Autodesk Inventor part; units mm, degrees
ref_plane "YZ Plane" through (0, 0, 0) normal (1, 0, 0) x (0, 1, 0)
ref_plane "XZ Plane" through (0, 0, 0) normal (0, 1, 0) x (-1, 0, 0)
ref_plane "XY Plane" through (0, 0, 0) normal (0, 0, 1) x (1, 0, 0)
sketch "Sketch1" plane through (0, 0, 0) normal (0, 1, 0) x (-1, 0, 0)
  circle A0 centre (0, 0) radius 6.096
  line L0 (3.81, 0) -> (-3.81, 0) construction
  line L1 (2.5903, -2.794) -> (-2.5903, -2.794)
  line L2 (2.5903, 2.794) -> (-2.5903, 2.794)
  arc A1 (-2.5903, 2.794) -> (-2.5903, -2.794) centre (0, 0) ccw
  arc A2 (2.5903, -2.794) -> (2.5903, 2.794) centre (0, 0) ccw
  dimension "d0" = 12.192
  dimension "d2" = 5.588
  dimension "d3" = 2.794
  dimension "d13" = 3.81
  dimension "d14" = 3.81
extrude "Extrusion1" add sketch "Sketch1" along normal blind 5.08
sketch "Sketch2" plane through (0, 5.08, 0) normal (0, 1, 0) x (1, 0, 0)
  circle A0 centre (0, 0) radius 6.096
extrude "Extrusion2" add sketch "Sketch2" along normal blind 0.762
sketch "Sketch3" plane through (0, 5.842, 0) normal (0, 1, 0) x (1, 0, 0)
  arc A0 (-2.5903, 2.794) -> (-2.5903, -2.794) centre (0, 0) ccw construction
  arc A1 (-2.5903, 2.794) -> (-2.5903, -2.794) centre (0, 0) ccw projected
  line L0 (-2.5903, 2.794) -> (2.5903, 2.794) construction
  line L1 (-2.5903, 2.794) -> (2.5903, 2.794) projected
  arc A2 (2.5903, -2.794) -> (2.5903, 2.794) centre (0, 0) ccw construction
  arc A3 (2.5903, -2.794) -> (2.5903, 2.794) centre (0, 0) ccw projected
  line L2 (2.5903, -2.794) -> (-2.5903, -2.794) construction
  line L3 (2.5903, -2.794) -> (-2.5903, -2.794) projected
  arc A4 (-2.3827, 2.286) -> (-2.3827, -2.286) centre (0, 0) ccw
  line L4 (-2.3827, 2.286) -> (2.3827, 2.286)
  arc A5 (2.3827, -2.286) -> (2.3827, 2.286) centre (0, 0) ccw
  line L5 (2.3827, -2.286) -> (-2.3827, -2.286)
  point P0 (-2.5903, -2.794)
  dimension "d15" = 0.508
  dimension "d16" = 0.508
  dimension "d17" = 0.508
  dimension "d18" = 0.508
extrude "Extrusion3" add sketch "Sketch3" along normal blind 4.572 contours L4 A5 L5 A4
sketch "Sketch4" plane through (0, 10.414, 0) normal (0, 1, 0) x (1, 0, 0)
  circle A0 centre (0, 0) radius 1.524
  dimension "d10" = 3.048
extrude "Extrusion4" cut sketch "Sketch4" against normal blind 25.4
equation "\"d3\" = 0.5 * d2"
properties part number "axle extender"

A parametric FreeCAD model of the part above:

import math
import FreeCAD as App
import Part
import Sketcher
from FreeCAD import Vector
Q = App.Units.Quantity

doc = App.newDocument("Part")
params = doc.addObject("Spreadsheet::Sheet", "Params")
for row, (alias, value) in enumerate([
    ("sketch1_diameter", "0.48 in"),
    ("sketch1_radius", "0.15 in"),
    ("pad1_length", "0.2 in"),
    ("sketch2_diameter", "0.48 in"),
    ("pad2_length", "0.03 in"),
    ("sketch3_radius", "0.13 in"),
    ("pad3_length", "0.18 in"),
    ("sketch4_diameter", "0.12 in"),
    ("pocket1_length", "1 in"),
], start=1):
    params.set(f"A{row}", alias)
    params.set(f"B{row}", "=" + value)
    params.setAlias(f"B{row}", alias)

body = doc.addObject("PartDesign::Body", "Body")

# Sketch on XZ plane
sketch1 = body.newObject("Sketcher::SketchObject", "Sketch")
sketch1.AttachmentSupport = (doc.getObject("XZ_Plane"), [""])
sketch1.MapMode = "FlatFace"
sketch1.addGeometry(Part.Circle(Vector(0, 0, 0), Vector(0, 0, 1), 6.1), False)
sketch1.addGeometry(Part.ArcOfCircle(Part.Circle(Vector(0, 0, 0), Vector(0, 0, 1), 3.8), math.radians(133), math.radians(227)), False)
sketch1.addGeometry(Part.LineSegment(Vector(-2.6, -2.8, 0), Vector(2.6, -2.8, 0)), False)
sketch1.addGeometry(Part.ArcOfCircle(Part.Circle(Vector(0, 0, 0), Vector(0, 0, 1), 3.8), math.radians(-47), math.radians(47)), False)
sketch1.addGeometry(Part.LineSegment(Vector(2.6, 2.8, 0), Vector(-2.6, 2.8, 0)), False)
sketch1.addConstraint(Sketcher.Constraint("Coincident", 1, 2, 2, 1))
sketch1.addConstraint(Sketcher.Constraint("Coincident", 2, 2, 3, 1))
sketch1.addConstraint(Sketcher.Constraint("Coincident", 3, 2, 4, 1))
sketch1.addConstraint(Sketcher.Constraint("Coincident", 4, 2, 1, 1))
sketch1.addConstraint(Sketcher.Constraint("Horizontal", 2))
sketch1.addConstraint(Sketcher.Constraint("Horizontal", 4))
sketch1.addConstraint(Sketcher.Constraint("Coincident", 0, 3, -1, 1))
sketch1.addConstraint(Sketcher.Constraint("Coincident", 1, 3, -1, 1))
sketch1.addConstraint(Sketcher.Constraint("Coincident", 3, 3, -1, 1))
sketch1.addConstraint(Sketcher.Constraint("Equal", 1, 3))
sketch1.addConstraint(Sketcher.Constraint("Vertical", 2, 2, 3, 2))
sketch1.addConstraint(Sketcher.Constraint("Diameter", 0, Q("0.48 in")))
sketch1.addConstraint(Sketcher.Constraint("Radius", 1, Q("0.15 in")))
sketch1.addConstraint(Sketcher.Constraint("DistanceY", 1, 2, -1, 1, Q("0.11 in")))
sketch1.setExpression("Constraints[11]", "Params.sketch1_diameter")
sketch1.setExpression("Constraints[12]", "Params.sketch1_radius")
pad1 = body.newObject("PartDesign::Pad", "Pad")
pad1.Profile = sketch1
pad1.setExpression("Length", "Params.pad1_length")
pad1.Reversed = True

# Sketch on XZ plane
sketch2 = body.newObject("Sketcher::SketchObject", "Sketch001")
sketch2.AttachmentSupport = (doc.getObject("XZ_Plane"), [""])
sketch2.MapMode = "FlatFace"
sketch2.AttachmentOffset = App.Placement(Vector(0, 0, -0.2 * 25.4), App.Rotation())
sketch2.addGeometry(Part.Circle(Vector(0, 0, 0), Vector(0, 0, 1), 6), False)
sketch2.addConstraint(Sketcher.Constraint("Coincident", 0, 3, -1, 1))
sketch2.addConstraint(Sketcher.Constraint("Diameter", 0, Q("0.48 in")))
sketch2.setExpression("Constraints[1]", "Params.sketch2_diameter")
pad2 = body.newObject("PartDesign::Pad", "Pad001")
pad2.Profile = sketch2
pad2.setExpression("Length", "Params.pad2_length")
pad2.Reversed = True

# Sketch on XZ plane
sketch3 = body.newObject("Sketcher::SketchObject", "Sketch002")
sketch3.AttachmentSupport = (doc.getObject("XZ_Plane"), [""])
sketch3.MapMode = "FlatFace"
sketch3.AttachmentOffset = App.Placement(Vector(0, 0, -0.23 * 25.4), App.Rotation())
sketch3.addGeometry(Part.LineSegment(Vector(2.4, -2.3, 0), Vector(-2.4, -2.3, 0)), False)
sketch3.addGeometry(Part.ArcOfCircle(Part.Circle(Vector(0, 0, 0), Vector(0, 0, 1), 3.3), math.radians(136), math.radians(224)), False)
sketch3.addGeometry(Part.LineSegment(Vector(-2.4, 2.3, 0), Vector(2.4, 2.3, 0)), False)
sketch3.addGeometry(Part.ArcOfCircle(Part.Circle(Vector(0, 0, 0), Vector(0, 0, 1), 3.3), math.radians(-44), math.radians(44)), False)
sketch3.addConstraint(Sketcher.Constraint("Coincident", 0, 2, 1, 2))
sketch3.addConstraint(Sketcher.Constraint("Coincident", 1, 1, 2, 1))
sketch3.addConstraint(Sketcher.Constraint("Coincident", 2, 2, 3, 2))
sketch3.addConstraint(Sketcher.Constraint("Coincident", 3, 1, 0, 1))
sketch3.addConstraint(Sketcher.Constraint("Horizontal", 0))
sketch3.addConstraint(Sketcher.Constraint("Horizontal", 2))
sketch3.addConstraint(Sketcher.Constraint("Coincident", 1, 3, -1, 1))
sketch3.addConstraint(Sketcher.Constraint("Coincident", 3, 3, -1, 1))
sketch3.addConstraint(Sketcher.Constraint("Equal", 1, 3))
sketch3.addConstraint(Sketcher.Constraint("Vertical", 0, 2, 1, 1))
sketch3.addConstraint(Sketcher.Constraint("Radius", 1, Q("0.13 in")))
sketch3.addConstraint(Sketcher.Constraint("DistanceY", 0, 2, -1, 1, Q("0.09 in")))
sketch3.setExpression("Constraints[10]", "Params.sketch3_radius")
pad3 = body.newObject("PartDesign::Pad", "Pad002")
pad3.Profile = sketch3
pad3.setExpression("Length", "Params.pad3_length")
pad3.Reversed = True

# Sketch on XZ plane
sketch4 = body.newObject("Sketcher::SketchObject", "Sketch003")
sketch4.AttachmentSupport = (doc.getObject("XZ_Plane"), [""])
sketch4.MapMode = "FlatFace"
sketch4.AttachmentOffset = App.Placement(Vector(0, 0, -0.41 * 25.4), App.Rotation())
sketch4.addGeometry(Part.Circle(Vector(0, 0, 0), Vector(0, 0, 1), 1.5), False)
sketch4.addConstraint(Sketcher.Constraint("Coincident", 0, 3, -1, 1))
sketch4.addConstraint(Sketcher.Constraint("Diameter", 0, Q("0.12 in")))
sketch4.setExpression("Constraints[1]", "Params.sketch4_diameter")
pocket1 = body.newObject("PartDesign::Pocket", "Pocket")
pocket1.Profile = sketch4
pocket1.setExpression("Length", "Params.pocket1_length")
pocket1.Reversed = True

doc.recompute()
